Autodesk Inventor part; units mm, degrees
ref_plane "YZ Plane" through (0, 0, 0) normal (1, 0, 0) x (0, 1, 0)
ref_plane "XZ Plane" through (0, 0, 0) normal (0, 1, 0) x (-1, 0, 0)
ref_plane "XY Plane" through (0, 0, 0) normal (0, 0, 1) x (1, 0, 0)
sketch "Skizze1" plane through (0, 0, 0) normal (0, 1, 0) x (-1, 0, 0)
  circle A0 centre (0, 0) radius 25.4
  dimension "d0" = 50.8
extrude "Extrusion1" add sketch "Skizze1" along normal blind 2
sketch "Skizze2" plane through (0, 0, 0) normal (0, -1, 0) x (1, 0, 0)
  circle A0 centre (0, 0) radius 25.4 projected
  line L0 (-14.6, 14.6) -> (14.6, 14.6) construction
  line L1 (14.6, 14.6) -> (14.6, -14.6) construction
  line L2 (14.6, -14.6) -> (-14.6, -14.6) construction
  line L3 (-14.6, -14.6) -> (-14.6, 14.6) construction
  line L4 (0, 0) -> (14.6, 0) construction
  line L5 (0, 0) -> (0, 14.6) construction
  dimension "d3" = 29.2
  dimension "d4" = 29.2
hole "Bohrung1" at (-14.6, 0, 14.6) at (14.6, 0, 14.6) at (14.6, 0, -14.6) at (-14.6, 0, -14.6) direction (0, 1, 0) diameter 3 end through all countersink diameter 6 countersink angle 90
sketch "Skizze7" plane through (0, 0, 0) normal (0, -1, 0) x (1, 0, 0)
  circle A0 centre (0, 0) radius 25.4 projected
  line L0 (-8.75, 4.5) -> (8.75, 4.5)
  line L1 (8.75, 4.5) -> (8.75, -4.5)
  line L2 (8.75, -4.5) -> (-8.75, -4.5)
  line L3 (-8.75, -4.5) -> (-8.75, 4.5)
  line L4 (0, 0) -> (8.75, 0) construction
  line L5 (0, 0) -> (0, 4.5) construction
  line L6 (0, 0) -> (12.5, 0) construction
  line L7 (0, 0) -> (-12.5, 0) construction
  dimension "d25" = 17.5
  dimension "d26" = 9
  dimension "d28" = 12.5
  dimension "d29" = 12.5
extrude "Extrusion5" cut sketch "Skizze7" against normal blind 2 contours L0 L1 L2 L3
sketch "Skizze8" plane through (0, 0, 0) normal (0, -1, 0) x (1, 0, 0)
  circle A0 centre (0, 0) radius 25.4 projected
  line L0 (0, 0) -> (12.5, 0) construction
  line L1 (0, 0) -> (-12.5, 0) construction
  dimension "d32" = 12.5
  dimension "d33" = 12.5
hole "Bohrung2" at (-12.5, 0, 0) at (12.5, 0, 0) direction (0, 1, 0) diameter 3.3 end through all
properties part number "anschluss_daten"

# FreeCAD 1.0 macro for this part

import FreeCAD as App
import Part
import Sketcher
from FreeCAD import Vector
Q = App.Units.Quantity


def add_polygon(sketch, points):
    """Adds a closed chain of lines whose ends are joined by coincident constraints."""
    first, n = sketch.GeometryCount, len(points)
    for a, b in zip(points, points[1:] + points[:1]):
        sketch.addGeometry(Part.LineSegment(App.Vector(*a, 0), App.Vector(*b, 0)), False)
    for i in range(n):
        sketch.addConstraint(Sketcher.Constraint("Coincident", first + i, 2, first + (i + 1) % n, 1))

doc = App.newDocument("Part")
params = doc.addObject("Spreadsheet::Sheet", "Params")
for row, (alias, value) in enumerate([
    ("sketch1_diameter", "50.8 mm"),
    ("pad1_length", "2 mm"),
    ("sketch2_diameter", "3 mm"),
    ("hole_diameter", "3 mm"),
    ("hole_csink_diameter", "6 mm"),
    ("sketch3_height", "9 mm"),
    ("sketch3_width", "17.5 mm"),
    ("pocket1_length", "2 mm"),
    ("sketch4_diameter", "3.3 mm"),
    ("hole2_diameter", "3.3 mm"),
], start=1):
    params.set(f"A{row}", alias)
    params.set(f"B{row}", "=" + value)
    params.setAlias(f"B{row}", alias)

body = doc.addObject("PartDesign::Body", "Body")

sketch1 = body.newObject("Sketcher::SketchObject", "Sketch")
sketch1.AttachmentSupport = (doc.getObject("XZ_Plane"), [""])
sketch1.MapMode = "FlatFace"
sketch1.addGeometry(Part.Circle(Vector(0, 0, 0), Vector(0, 0, 1), 25), False)
sketch1.addConstraint(Sketcher.Constraint("Coincident", 0, 3, -1, 1))
sketch1.addConstraint(Sketcher.Constraint("Diameter", 0, Q("50.8 mm")))
sketch1.setExpression("Constraints[1]", "Params.sketch1_diameter")
pad1 = body.newObject("PartDesign::Pad", "Pad")
pad1.Profile = sketch1
pad1.setExpression("Length", "Params.pad1_length")
pad1.Reversed = True

sketch2 = body.newObject("Sketcher::SketchObject", "Sketch001")
sketch2.AttachmentSupport = (doc.getObject("XZ_Plane"), [""])
sketch2.MapMode = "FlatFace"
sketch2.addGeometry(Part.Circle(Vector(-14.6, 14.6, 0), Vector(0, 0, 1), 1.5), False)
sketch2.addGeometry(Part.Circle(Vector(14.6, 14.6, 0), Vector(0, 0, 1), 1.5), False)
sketch2.addGeometry(Part.Circle(Vector(14.6, -14.6, 0), Vector(0, 0, 1), 1.5), False)
sketch2.addGeometry(Part.Circle(Vector(-14.6, -14.6, 0), Vector(0, 0, 1), 1.5), False)
sketch2.addConstraint(Sketcher.Constraint("Equal", 0, 1))
sketch2.addConstraint(Sketcher.Constraint("Equal", 1, 2))
sketch2.addConstraint(Sketcher.Constraint("Equal", 2, 3))
sketch2.addConstraint(Sketcher.Constraint("Symmetric", 0, 3, 2, 3, -1, 1))
sketch2.addConstraint(Sketcher.Constraint("Symmetric", 1, 3, 3, 3, -1, 1))
sketch2.addConstraint(Sketcher.Constraint("Symmetric", 0, 3, 1, 3, -2))
sketch2.addConstraint(Sketcher.Constraint("Diameter", 0, Q("3 mm")))
sketch2.addConstraint(Sketcher.Constraint("DistanceX", 0, 3, -1, 1, Q("14.6 mm")))
sketch2.addConstraint(Sketcher.Constraint("DistanceY", -1, 1, 0, 3, Q("14.6 mm")))
sketch2.setExpression("Constraints[6]", "Params.sketch2_diameter")
doc.recompute()
hole = body.newObject("PartDesign::Hole", "Hole")
hole.Profile = sketch2
hole.ThreadType = "None"
hole.setExpression("Diameter", "Params.hole_diameter")
hole.DepthType = "ThroughAll"
hole.HoleCutType = "Countersink"
hole.setExpression("HoleCutDiameter", "Params.hole_csink_diameter")
hole.HoleCutCountersinkAngle = 90

sketch3 = body.newObject("Sketcher::SketchObject", "Sketch002")
sketch3.AttachmentSupport = (doc.getObject("XZ_Plane"), [""])
sketch3.MapMode = "FlatFace"
add_polygon(sketch3, [(9, 4), (-9, 4), (-9, -4), (9, -4)])
sketch3.addConstraint(Sketcher.Constraint("Horizontal", 0))
sketch3.addConstraint(Sketcher.Constraint("Vertical", 1))
sketch3.addConstraint(Sketcher.Constraint("Horizontal", 2))
sketch3.addConstraint(Sketcher.Constraint("Vertical", 3))
sketch3.addConstraint(Sketcher.Constraint("Symmetric", 0, 2, 2, 2, -1, 1))
sketch3.addConstraint(Sketcher.Constraint("DistanceY", 1, 2, 1, 1, Q("9 mm")))
sketch3.addConstraint(Sketcher.Constraint("DistanceX", 0, 2, 0, 1, Q("17.5 mm")))
sketch3.setExpression("Constraints[9]", "Params.sketch3_height")
sketch3.setExpression("Constraints[10]", "Params.sketch3_width")
pocket1 = body.newObject("PartDesign::Pocket", "Pocket")
pocket1.Profile = sketch3
pocket1.setExpression("Length", "Params.pocket1_length")

sketch4 = body.newObject("Sketcher::SketchObject", "Sketch003")
sketch4.AttachmentSupport = (doc.getObject("XZ_Plane"), [""])
sketch4.MapMode = "FlatFace"
sketch4.addGeometry(Part.Circle(Vector(-12.5, 0, 0), Vector(0, 0, 1), 1.6), False)
sketch4.addGeometry(Part.Circle(Vector(12.5, 0, 0), Vector(0, 0, 1), 1.6), False)
sketch4.addConstraint(Sketcher.Constraint("Equal", 0, 1))
sketch4.addConstraint(Sketcher.Constraint("Symmetric", 0, 3, 1, 3, -1, 1))
sketch4.addConstraint(Sketcher.Constraint("PointOnObject", 0, 3, -1))
sketch4.addConstraint(Sketcher.Constraint("Diameter", 0, Q("3.3 mm")))
sketch4.addConstraint(Sketcher.Constraint("DistanceX", 0, 3, 1, 3, Q("25 mm")))
sketch4.setExpression("Constraints[3]", "Params.sketch4_diameter")
doc.recompute()
hole2 = body.newObject("PartDesign::Hole", "Hole001")
hole2.Profile = sketch4
hole2.ThreadType = "None"
hole2.setExpression("Diameter", "Params.hole2_diameter")
hole2.DepthType = "ThroughAll"

doc.recompute()
